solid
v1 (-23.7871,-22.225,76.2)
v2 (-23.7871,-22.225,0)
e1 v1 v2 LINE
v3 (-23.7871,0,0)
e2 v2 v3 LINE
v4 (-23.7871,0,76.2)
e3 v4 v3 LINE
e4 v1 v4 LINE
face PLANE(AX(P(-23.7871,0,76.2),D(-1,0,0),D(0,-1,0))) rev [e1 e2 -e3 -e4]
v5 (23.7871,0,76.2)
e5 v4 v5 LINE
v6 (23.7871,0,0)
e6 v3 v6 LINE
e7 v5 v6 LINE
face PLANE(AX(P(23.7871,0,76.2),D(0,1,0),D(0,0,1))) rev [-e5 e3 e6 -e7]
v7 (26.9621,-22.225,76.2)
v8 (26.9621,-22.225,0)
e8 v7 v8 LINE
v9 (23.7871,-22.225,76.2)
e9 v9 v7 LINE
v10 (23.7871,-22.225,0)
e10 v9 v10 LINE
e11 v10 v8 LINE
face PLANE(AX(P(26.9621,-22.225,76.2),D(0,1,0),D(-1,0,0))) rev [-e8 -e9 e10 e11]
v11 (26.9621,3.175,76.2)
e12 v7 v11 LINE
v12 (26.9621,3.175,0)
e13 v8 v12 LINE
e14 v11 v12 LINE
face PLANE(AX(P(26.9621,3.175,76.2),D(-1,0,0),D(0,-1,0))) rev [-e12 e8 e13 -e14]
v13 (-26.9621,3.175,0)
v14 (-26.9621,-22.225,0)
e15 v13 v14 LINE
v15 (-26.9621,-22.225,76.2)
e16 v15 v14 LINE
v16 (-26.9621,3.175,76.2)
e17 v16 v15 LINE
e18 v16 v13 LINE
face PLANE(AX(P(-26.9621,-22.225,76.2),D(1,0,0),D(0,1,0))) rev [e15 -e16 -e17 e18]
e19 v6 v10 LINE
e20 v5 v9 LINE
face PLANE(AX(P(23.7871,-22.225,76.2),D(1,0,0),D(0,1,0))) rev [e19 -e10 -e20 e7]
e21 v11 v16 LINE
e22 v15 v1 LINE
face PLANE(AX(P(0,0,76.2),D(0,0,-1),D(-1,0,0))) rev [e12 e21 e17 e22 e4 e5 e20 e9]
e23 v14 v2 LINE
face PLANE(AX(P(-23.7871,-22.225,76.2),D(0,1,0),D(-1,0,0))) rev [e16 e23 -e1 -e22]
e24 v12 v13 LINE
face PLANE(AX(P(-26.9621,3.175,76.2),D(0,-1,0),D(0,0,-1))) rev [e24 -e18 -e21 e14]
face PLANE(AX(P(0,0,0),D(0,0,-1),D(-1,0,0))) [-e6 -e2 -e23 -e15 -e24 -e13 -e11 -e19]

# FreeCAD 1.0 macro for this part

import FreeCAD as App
import Part
import Sketcher
Q = App.Units.Quantity

doc = App.newDocument("Part")
body = doc.addObject("PartDesign::Body", "Body")

sketch1 = doc.addObject("Sketcher::SketchObject", "Sketch")
body.addObject(sketch1)
sketch1.AttachmentSupport = (doc.XY_Plane, [""])
sketch1.MapMode = "FlatFace"
sketch1.addGeometry([
    Part.LineSegment(App.Vector(-26.9621, 3.175, 0), App.Vector(-26.9621, -22.225, 0)),
    Part.LineSegment(App.Vector(-26.9621, -22.225, 0), App.Vector(-23.7871, -22.225, 0)),
    Part.LineSegment(App.Vector(-23.7871, -22.225, 0), App.Vector(-23.7871, 0, 0)),
    Part.LineSegment(App.Vector(-23.7871, 0, 0), App.Vector(23.7871, 0, 0)),
    Part.LineSegment(App.Vector(23.7871, 0, 0), App.Vector(23.7871, -22.225, 0)),
    Part.LineSegment(App.Vector(23.7871, -22.225, 0), App.Vector(26.9621, -22.225, 0)),
    Part.LineSegment(App.Vector(26.9621, -22.225, 0), App.Vector(26.9621, 3.175, 0)),
    Part.LineSegment(App.Vector(26.9621, 3.175, 0), App.Vector(-26.9621, 3.175, 0)),
], False)
sketch1.addConstraint([
    Sketcher.Constraint("Coincident", 0, 2, 1, 1),
    Sketcher.Constraint("Coincident", 1, 2, 2, 1),
    Sketcher.Constraint("Coincident", 2, 2, 3, 1),
    Sketcher.Constraint("Coincident", 3, 2, 4, 1),
    Sketcher.Constraint("Coincident", 4, 2, 5, 1),
    Sketcher.Constraint("Coincident", 5, 2, 6, 1),
    Sketcher.Constraint("Coincident", 6, 2, 7, 1),
    Sketcher.Constraint("Coincident", 7, 2, 0, 1),
    Sketcher.Constraint("Vertical", 0),
    Sketcher.Constraint("Horizontal", 1),
    Sketcher.Constraint("Vertical", 2),
    Sketcher.Constraint("Horizontal", 3),
    Sketcher.Constraint("Vertical", 4),
    Sketcher.Constraint("Horizontal", 5),
    Sketcher.Constraint("Vertical", 6),
    Sketcher.Constraint("Horizontal", 7),
    Sketcher.Constraint("Symmetric", 2, 2, 3, 2, -1, 1),
    Sketcher.Constraint("Symmetric", 0, 2, 5, 2, -2),
    Sketcher.Constraint("DistanceY", 0, 2, 0, 1, Q("1 in")),
    Sketcher.Constraint("DistanceX", 1, 1, 1, 2, Q("0.125 in")),
    Sketcher.Constraint("DistanceX", 3, 1, 3, 2, Q("1.873 in")),
    Sketcher.Constraint("DistanceY", 2, 1, 2, 2, Q("0.875 in")),
])
pad1 = doc.addObject("PartDesign::Pad", "Pad")
body.addObject(pad1)
pad1.Profile = sketch1
pad1.Length = Q("3 in")

doc.recompute()
